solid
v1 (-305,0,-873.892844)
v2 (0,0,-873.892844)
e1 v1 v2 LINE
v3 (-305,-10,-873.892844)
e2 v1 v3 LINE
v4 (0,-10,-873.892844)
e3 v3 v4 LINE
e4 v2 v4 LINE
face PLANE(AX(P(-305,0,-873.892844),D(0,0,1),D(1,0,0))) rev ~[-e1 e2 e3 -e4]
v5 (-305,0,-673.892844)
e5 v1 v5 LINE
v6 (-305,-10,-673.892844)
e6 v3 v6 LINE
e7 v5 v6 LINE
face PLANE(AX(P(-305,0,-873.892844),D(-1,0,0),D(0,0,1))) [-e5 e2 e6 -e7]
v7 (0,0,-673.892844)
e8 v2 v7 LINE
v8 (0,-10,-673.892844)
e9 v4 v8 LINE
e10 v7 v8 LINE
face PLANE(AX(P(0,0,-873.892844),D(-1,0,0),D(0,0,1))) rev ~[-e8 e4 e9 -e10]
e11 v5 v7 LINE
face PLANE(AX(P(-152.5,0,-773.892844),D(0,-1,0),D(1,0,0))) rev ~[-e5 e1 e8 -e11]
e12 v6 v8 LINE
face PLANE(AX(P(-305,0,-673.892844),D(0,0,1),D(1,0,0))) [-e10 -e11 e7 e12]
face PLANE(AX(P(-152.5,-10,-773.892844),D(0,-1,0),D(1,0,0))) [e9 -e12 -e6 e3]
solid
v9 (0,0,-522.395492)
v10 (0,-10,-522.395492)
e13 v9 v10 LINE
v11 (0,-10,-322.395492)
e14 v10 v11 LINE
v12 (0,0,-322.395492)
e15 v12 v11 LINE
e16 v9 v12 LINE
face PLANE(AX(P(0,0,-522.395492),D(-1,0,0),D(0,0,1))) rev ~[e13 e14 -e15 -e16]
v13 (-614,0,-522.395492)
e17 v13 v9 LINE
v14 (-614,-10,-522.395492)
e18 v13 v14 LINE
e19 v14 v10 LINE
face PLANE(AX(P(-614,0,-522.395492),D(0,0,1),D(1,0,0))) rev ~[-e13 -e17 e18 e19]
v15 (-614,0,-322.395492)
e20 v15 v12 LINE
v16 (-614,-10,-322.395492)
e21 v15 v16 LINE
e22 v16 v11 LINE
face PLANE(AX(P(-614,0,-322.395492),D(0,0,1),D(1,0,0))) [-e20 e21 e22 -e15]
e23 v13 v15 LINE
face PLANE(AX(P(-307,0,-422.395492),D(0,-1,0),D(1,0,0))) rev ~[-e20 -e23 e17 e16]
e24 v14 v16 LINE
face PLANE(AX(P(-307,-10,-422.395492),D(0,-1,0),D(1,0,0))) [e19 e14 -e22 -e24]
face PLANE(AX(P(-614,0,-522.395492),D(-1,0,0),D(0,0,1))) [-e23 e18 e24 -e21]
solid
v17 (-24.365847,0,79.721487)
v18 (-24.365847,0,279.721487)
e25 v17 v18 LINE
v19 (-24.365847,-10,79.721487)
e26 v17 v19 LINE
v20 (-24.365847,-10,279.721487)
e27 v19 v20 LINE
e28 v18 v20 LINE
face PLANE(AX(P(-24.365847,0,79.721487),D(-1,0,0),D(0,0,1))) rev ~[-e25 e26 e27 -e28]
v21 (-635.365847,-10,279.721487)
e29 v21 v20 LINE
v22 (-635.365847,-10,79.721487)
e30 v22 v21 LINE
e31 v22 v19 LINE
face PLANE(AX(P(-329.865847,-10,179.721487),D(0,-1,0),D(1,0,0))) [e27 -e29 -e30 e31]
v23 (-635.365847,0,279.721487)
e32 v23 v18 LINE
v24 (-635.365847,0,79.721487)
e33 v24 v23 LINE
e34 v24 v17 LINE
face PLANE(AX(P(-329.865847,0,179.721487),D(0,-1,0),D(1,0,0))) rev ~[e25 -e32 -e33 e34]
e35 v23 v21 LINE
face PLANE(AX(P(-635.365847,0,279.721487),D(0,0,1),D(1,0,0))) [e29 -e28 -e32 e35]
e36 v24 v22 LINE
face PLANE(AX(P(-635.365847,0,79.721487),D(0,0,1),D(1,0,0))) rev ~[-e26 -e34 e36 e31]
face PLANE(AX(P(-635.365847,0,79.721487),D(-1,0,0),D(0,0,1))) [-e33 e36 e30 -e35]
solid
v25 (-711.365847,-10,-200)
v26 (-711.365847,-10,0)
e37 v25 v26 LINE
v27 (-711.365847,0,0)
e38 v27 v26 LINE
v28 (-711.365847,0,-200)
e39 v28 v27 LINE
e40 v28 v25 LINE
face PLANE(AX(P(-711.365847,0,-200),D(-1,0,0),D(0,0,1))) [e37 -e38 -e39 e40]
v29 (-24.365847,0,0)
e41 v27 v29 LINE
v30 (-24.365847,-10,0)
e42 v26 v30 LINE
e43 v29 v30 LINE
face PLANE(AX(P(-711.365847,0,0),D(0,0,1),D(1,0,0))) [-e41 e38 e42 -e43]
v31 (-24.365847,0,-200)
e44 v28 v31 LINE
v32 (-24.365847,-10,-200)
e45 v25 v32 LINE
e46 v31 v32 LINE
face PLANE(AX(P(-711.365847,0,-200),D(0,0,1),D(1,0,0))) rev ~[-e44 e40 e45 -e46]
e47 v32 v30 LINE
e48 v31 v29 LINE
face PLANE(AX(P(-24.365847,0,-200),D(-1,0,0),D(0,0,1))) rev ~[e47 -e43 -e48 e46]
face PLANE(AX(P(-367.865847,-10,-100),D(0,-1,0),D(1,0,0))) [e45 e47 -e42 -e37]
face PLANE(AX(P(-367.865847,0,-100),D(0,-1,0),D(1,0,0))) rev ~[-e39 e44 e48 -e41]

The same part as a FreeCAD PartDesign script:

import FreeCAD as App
import Part
import Sketcher

V = App.Vector
Q = App.Units.Quantity


def add_polygon(sketch, points):
    """Adds a closed chain of lines whose ends are joined by coincident constraints."""
    first, n = sketch.GeometryCount, len(points)
    for a, b in zip(points, points[1:] + points[:1]):
        sketch.addGeometry(Part.LineSegment(App.Vector(*a, 0), App.Vector(*b, 0)), False)
    for i in range(n):
        sketch.addConstraint(Sketcher.Constraint("Coincident", first + i, 2, first + (i + 1) % n, 1))

doc = App.newDocument("Part")
body = doc.addObject("PartDesign::Body", "Body")
body.AllowCompound = True

# Sketch on XZ plane
sketch1 = doc.addObject("Sketcher::SketchObject", "Sketch")
body.addObject(sketch1)
sketch1.AttachmentSupport = (doc.XZ_Plane, [""])
sketch1.MapMode = "FlatFace"
add_polygon(sketch1, [(-635.365847, 279.721487), (-635.365847, 79.721487), (-24.365847, 79.721487), (-24.365847, 279.721487)])  # lines 0-3
add_polygon(sketch1, [(-711.365847, 0), (-711.365847, -200), (-24.365847, -200), (-24.365847, 0)])  # lines 4-7
add_polygon(sketch1, [(-614, -322.395492), (-614, -522.395492), (0, -522.395492), (0, -322.395492)])  # lines 8-11
add_polygon(sketch1, [(-305, -673.892844), (-305, -873.892844), (0, -873.892844), (0, -673.892844)])  # lines 12-15
sketch1.addConstraint([
    Sketcher.Constraint("Vertical", 0),
    Sketcher.Constraint("Horizontal", 1),
    Sketcher.Constraint("Vertical", 2),
    Sketcher.Constraint("Horizontal", 3),
    Sketcher.Constraint("Vertical", 4),
    Sketcher.Constraint("Horizontal", 5),
    Sketcher.Constraint("Vertical", 6),
    Sketcher.Constraint("Horizontal", 7),
    Sketcher.Constraint("Vertical", 8),
    Sketcher.Constraint("Horizontal", 9),
    Sketcher.Constraint("Vertical", 10),
    Sketcher.Constraint("Horizontal", 11),
    Sketcher.Constraint("Vertical", 12),
    Sketcher.Constraint("Horizontal", 13),
    Sketcher.Constraint("Vertical", 14),
    Sketcher.Constraint("Horizontal", 15),
    Sketcher.Constraint("PointOnObject", 6, 2, -1),
    Sketcher.Constraint("PointOnObject", 9, 2, -2),
    Sketcher.Constraint("PointOnObject", 13, 2, -2),
    Sketcher.Constraint("Vertical", 2, 2, 5, 2),
    Sketcher.Constraint("Equal", 2, 4),
    Sketcher.Constraint("Equal", 6, 8),
    Sketcher.Constraint("Equal", 10, 12),
    Sketcher.Constraint("DistanceX", 1, 1, 1, 2, Q("611 mm")),
    Sketcher.Constraint("DistanceX", 5, 1, 5, 2, Q("687 mm")),
    Sketcher.Constraint("DistanceX", 9, 1, 9, 2, Q("614 mm")),
    Sketcher.Constraint("DistanceX", 13, 1, 13, 2, Q("305 mm")),
    Sketcher.Constraint("DistanceY", 0, 2, 0, 1, Q("200 mm")),
    Sketcher.Constraint("DistanceY", 8, 2, -1, 1, Q("522.395492 mm")),
    Sketcher.Constraint("DistanceY", 8, 2, 0, 2, Q("602.116979 mm")),
    Sketcher.Constraint("DistanceY", 12, 2, 9, 2, Q("351.497352 mm")),
    Sketcher.Constraint("DistanceX", 0, 2, -1, 1, Q("635.365847 mm")),
])
pad1 = doc.addObject("PartDesign::Pad", "Pad")
body.addObject(pad1)
pad1.Profile = sketch1
pad1.Length = 10

doc.recompute()
